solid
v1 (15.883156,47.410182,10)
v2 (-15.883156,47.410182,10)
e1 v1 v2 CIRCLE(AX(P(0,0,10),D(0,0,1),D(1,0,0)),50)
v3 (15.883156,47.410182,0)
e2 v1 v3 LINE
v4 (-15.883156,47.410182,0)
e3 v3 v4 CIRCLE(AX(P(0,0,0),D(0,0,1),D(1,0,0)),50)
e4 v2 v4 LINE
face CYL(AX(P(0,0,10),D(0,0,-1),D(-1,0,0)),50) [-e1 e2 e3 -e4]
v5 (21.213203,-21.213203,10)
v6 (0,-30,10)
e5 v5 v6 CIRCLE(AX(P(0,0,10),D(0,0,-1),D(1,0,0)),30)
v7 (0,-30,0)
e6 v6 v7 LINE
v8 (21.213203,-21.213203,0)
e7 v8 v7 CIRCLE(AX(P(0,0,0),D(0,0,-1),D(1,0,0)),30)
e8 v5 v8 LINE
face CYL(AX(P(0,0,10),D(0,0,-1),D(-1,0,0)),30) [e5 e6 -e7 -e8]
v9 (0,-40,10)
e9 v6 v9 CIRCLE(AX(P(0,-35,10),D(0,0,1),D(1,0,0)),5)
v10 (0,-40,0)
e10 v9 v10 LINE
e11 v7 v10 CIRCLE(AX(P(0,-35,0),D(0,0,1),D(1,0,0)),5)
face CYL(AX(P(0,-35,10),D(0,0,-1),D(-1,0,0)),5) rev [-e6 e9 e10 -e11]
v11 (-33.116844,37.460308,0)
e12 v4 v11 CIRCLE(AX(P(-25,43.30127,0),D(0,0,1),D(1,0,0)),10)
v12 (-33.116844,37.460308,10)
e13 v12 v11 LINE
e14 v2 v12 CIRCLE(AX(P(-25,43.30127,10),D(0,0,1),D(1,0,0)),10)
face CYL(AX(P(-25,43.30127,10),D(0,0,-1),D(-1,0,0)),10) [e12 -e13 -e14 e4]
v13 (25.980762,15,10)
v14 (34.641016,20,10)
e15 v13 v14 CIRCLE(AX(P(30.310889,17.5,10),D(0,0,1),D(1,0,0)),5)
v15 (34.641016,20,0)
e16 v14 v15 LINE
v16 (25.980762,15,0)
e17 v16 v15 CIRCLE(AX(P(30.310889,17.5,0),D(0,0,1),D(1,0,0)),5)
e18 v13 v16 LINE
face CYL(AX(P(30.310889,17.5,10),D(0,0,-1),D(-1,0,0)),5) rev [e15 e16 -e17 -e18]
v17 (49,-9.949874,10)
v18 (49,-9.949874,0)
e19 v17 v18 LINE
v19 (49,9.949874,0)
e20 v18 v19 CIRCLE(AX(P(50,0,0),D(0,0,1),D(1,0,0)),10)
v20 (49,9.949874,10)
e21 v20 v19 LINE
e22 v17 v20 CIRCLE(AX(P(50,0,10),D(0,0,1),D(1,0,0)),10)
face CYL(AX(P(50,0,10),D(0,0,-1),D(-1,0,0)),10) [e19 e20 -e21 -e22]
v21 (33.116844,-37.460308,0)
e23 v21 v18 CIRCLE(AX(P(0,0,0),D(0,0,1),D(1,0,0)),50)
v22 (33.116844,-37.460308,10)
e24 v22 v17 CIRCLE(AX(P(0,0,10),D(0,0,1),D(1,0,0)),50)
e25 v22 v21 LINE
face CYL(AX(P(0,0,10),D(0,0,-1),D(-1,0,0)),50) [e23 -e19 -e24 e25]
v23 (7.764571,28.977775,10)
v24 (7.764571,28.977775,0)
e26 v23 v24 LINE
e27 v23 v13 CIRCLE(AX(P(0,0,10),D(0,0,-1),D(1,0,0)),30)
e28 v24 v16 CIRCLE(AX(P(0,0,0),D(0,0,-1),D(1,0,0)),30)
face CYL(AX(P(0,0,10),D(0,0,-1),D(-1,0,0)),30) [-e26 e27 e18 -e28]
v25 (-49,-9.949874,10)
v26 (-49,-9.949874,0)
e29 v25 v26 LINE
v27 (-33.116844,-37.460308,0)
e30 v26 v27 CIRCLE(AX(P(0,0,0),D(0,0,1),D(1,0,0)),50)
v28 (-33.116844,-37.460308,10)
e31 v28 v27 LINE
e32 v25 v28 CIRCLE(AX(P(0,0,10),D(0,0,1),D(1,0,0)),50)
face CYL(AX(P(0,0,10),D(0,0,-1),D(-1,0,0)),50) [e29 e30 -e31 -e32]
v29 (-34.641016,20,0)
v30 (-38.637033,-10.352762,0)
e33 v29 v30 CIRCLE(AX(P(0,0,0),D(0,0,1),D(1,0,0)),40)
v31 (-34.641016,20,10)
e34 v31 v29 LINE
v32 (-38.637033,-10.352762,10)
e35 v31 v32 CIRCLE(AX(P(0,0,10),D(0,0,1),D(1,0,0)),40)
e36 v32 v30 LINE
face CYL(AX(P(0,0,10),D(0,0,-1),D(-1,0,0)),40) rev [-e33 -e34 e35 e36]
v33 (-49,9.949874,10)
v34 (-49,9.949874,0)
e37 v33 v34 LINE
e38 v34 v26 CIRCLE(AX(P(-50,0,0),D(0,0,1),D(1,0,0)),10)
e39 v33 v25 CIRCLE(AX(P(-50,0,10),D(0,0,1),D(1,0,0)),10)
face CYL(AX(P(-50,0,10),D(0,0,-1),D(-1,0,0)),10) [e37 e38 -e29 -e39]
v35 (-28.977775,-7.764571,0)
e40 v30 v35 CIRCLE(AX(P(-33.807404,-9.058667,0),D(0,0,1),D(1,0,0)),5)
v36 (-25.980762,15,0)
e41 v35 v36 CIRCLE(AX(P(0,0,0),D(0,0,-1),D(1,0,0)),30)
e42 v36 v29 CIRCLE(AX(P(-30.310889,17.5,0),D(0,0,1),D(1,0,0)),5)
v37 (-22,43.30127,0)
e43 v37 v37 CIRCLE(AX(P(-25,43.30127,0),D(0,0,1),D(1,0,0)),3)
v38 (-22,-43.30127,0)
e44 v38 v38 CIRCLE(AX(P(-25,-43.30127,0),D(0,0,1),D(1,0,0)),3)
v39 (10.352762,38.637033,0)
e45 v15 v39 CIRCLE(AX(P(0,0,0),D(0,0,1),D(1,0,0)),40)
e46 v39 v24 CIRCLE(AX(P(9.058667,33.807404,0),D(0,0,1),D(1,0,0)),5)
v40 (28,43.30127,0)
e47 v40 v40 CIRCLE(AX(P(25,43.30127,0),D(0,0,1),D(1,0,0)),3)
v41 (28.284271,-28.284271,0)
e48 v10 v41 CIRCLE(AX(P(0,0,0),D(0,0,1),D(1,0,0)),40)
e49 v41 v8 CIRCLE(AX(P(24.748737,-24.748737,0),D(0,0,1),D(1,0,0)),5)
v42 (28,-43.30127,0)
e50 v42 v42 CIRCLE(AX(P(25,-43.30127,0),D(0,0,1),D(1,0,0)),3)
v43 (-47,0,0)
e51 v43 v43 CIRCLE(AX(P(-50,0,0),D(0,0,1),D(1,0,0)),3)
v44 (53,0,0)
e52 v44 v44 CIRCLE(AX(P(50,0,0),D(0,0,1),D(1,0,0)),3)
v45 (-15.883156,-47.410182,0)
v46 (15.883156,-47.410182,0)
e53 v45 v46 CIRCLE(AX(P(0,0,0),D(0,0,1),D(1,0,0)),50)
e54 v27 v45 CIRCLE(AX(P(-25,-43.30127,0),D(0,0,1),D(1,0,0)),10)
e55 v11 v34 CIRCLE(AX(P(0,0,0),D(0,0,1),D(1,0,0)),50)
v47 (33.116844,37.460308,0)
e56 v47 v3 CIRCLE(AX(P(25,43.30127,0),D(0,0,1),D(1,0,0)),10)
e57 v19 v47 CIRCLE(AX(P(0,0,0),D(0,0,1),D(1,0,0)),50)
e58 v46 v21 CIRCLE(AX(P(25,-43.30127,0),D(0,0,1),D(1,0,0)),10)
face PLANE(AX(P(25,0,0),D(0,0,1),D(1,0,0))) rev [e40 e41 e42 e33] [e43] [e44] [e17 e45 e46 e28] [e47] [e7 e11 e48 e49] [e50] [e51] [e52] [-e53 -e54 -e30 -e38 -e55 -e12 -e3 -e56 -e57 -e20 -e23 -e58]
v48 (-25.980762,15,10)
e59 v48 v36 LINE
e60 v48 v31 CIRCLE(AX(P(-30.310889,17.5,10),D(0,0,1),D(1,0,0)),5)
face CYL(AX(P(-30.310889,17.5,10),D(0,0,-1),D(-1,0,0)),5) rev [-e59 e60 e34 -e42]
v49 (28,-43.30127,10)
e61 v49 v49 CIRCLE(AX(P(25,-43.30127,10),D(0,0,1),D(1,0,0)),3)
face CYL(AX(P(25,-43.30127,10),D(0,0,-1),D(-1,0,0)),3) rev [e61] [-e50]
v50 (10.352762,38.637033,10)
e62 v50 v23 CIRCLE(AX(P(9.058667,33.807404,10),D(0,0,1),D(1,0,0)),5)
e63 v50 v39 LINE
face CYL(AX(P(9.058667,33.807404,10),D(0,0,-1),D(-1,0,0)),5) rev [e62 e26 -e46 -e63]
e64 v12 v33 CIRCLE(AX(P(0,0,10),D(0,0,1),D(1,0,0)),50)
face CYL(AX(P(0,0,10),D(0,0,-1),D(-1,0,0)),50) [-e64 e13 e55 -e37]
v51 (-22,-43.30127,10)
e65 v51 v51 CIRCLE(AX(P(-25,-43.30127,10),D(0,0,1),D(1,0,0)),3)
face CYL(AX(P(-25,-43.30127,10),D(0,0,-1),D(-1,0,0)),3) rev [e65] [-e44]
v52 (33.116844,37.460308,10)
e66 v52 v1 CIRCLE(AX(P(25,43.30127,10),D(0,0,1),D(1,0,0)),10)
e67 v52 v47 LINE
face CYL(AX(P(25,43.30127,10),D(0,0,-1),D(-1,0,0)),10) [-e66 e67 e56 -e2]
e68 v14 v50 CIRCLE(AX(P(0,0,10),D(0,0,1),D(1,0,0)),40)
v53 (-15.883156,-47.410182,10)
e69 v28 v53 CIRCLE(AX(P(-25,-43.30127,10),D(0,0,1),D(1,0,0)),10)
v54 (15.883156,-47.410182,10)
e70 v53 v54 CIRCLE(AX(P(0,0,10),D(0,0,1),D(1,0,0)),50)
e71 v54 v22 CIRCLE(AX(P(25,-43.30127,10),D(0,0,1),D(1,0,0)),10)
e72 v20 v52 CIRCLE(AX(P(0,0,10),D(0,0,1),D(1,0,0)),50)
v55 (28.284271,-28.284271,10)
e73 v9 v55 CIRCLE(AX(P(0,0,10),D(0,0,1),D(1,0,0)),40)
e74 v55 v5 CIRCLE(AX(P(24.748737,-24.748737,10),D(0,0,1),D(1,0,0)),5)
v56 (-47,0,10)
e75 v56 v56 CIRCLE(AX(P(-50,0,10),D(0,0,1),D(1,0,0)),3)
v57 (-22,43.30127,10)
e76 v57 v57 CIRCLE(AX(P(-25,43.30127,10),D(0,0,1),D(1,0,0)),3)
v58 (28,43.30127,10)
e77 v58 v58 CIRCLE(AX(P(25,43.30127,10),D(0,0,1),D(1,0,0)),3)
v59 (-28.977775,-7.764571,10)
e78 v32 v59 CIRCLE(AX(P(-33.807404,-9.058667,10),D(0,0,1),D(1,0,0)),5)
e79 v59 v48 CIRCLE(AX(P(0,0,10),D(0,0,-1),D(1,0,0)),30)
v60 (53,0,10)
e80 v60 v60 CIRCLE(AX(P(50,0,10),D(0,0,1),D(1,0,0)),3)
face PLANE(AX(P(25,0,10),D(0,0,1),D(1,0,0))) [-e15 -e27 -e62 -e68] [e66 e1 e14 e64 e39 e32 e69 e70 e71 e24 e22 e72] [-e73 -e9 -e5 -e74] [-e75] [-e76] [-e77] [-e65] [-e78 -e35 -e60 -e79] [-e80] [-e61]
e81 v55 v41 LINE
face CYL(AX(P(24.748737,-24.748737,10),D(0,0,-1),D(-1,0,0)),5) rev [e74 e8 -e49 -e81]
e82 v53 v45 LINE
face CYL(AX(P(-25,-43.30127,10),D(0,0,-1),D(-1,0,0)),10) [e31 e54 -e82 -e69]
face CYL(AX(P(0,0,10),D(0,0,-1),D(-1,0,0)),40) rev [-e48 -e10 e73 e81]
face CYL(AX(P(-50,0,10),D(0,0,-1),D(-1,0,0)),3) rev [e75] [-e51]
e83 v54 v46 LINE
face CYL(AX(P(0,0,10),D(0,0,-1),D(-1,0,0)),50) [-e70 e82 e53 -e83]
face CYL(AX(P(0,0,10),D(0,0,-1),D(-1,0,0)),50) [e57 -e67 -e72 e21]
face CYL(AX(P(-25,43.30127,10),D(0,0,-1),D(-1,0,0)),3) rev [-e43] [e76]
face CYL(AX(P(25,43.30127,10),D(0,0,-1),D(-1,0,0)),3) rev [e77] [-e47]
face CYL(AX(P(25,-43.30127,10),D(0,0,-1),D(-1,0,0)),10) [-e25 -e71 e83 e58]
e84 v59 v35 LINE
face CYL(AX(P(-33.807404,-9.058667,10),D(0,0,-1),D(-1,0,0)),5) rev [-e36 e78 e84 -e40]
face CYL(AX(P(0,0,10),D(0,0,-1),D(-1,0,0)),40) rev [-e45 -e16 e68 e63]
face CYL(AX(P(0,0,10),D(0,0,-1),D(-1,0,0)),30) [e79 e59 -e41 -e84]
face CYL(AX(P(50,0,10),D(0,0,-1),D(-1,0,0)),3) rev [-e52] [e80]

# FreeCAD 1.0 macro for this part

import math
import FreeCAD as App
import Part
import Sketcher
from FreeCAD import Vector
Q = App.Units.Quantity

doc = App.newDocument("Part")
body = doc.addObject("PartDesign::Body", "Body")

# Sketch on XY plane
sketch1 = body.newObject("Sketcher::SketchObject", "Sketch")
sketch1.AttachmentSupport = (doc.getObject("XY_Plane"), [""])
sketch1.MapMode = "FlatFace"
sketch1.addGeometry(Part.ArcOfCircle(Part.Circle(Vector(0, 0, 0), Vector(0, 0, 1), 50), math.radians(11), math.radians(49)), False)
sketch1.addGeometry(Part.ArcOfCircle(Part.Circle(Vector(25, 43.3, 0), Vector(0, 0, 1), 10), math.radians(-36), math.radians(156)), False)
sketch1.addGeometry(Part.ArcOfCircle(Part.Circle(Vector(0, 0, 0), Vector(0, 0, 1), 50), math.radians(71), math.radians(109)), False)
sketch1.addGeometry(Part.ArcOfCircle(Part.Circle(Vector(-25, 43.3, 0), Vector(0, 0, 1), 10), math.radians(24), math.radians(216)), False)
sketch1.addGeometry(Part.ArcOfCircle(Part.Circle(Vector(0, 0, 0), Vector(0, 0, 1), 50), math.radians(131), math.radians(169)), False)
sketch1.addGeometry(Part.ArcOfCircle(Part.Circle(Vector(-50, 0, 0), Vector(0, 0, 1), 10), math.radians(84), math.radians(276)), False)
sketch1.addGeometry(Part.ArcOfCircle(Part.Circle(Vector(0, 0, 0), Vector(0, 0, 1), 50), math.radians(-169), math.radians(-131)), False)
sketch1.addGeometry(Part.ArcOfCircle(Part.Circle(Vector(-25, -43.3, 0), Vector(0, 0, 1), 10), math.radians(144), math.radians(336)), False)
sketch1.addGeometry(Part.ArcOfCircle(Part.Circle(Vector(0, 0, 0), Vector(0, 0, 1), 50), math.radians(-109), math.radians(-71)), False)
sketch1.addGeometry(Part.ArcOfCircle(Part.Circle(Vector(25, -43.3, 0), Vector(0, 0, 1), 10), math.radians(-156), math.radians(36)), False)
sketch1.addGeometry(Part.ArcOfCircle(Part.Circle(Vector(0, 0, 0), Vector(0, 0, 1), 50), math.radians(-49), math.radians(-11)), False)
sketch1.addGeometry(Part.ArcOfCircle(Part.Circle(Vector(50, 0, 0), Vector(0, 0, 1), 10), math.radians(-96), math.radians(96)), False)
sketch1.addGeometry(Part.Circle(Vector(-25, -43.3, 0), Vector(0, 0, 1), 3), False)
sketch1.addGeometry(Part.Circle(Vector(25, -43.3, 0), Vector(0, 0, 1), 3), False)
sketch1.addGeometry(Part.ArcOfCircle(Part.Circle(Vector(0, 0, 0), Vector(0, 0, 1), 40), math.radians(-90), math.radians(-45)), False)
sketch1.addGeometry(Part.ArcOfCircle(Part.Circle(Vector(0, -35, 0), Vector(0, 0, 1), 5), math.radians(90), math.radians(270)), False)
sketch1.addGeometry(Part.ArcOfCircle(Part.Circle(Vector(0, 0, 0), Vector(0, 0, 1), 30), math.radians(-90), math.radians(-45)), False)
sketch1.addGeometry(Part.ArcOfCircle(Part.Circle(Vector(24.7, -24.7, 0), Vector(0, 0, 1), 5), math.radians(-45), math.radians(135)), False)
sketch1.addGeometry(Part.Circle(Vector(-50, 0, 0), Vector(0, 0, 1), 3), False)
sketch1.addGeometry(Part.ArcOfCircle(Part.Circle(Vector(0, 0, 0), Vector(0, 0, 1), 40), math.radians(150), math.radians(195)), False)
sketch1.addGeometry(Part.ArcOfCircle(Part.Circle(Vector(-30.3, 17.5, 0), Vector(0, 0, 1), 5), math.radians(-30), math.radians(150)), False)
sketch1.addGeometry(Part.ArcOfCircle(Part.Circle(Vector(0, 0, 0), Vector(0, 0, 1), 30), math.radians(150), math.radians(195)), False)
sketch1.addGeometry(Part.ArcOfCircle(Part.Circle(Vector(-33.8, -9.1, 0), Vector(0, 0, 1), 5), math.radians(-165), math.radians(15)), False)
sketch1.addGeometry(Part.Circle(Vector(-25, 43.3, 0), Vector(0, 0, 1), 3), False)
sketch1.addGeometry(Part.Circle(Vector(50, 0, 0), Vector(0, 0, 1), 3), False)
sketch1.addGeometry(Part.ArcOfCircle(Part.Circle(Vector(0, 0, 0), Vector(0, 0, 1), 40), math.radians(30), math.radians(75)), False)
sketch1.addGeometry(Part.ArcOfCircle(Part.Circle(Vector(30.3, 17.5, 0), Vector(0, 0, 1), 5), math.radians(-150), math.radians(30)), False)
sketch1.addGeometry(Part.ArcOfCircle(Part.Circle(Vector(0, 0, 0), Vector(0, 0, 1), 30), math.radians(30), math.radians(75)), False)
sketch1.addGeometry(Part.ArcOfCircle(Part.Circle(Vector(9.1, 33.8, 0), Vector(0, 0, 1), 5), math.radians(75), math.radians(255)), False)
sketch1.addGeometry(Part.Circle(Vector(25, 43.3, 0), Vector(0, 0, 1), 3), False)
sketch1.addConstraint(Sketcher.Constraint("Coincident", 0, 2, 1, 1))
sketch1.addConstraint(Sketcher.Constraint("Coincident", 1, 2, 2, 1))
sketch1.addConstraint(Sketcher.Constraint("Coincident", 2, 2, 3, 1))
sketch1.addConstraint(Sketcher.Constraint("Coincident", 3, 2, 4, 1))
sketch1.addConstraint(Sketcher.Constraint("Coincident", 4, 2, 5, 1))
sketch1.addConstraint(Sketcher.Constraint("Coincident", 5, 2, 6, 1))
sketch1.addConstraint(Sketcher.Constraint("Coincident", 6, 2, 7, 1))
sketch1.addConstraint(Sketcher.Constraint("Coincident", 7, 2, 8, 1))
sketch1.addConstraint(Sketcher.Constraint("Coincident", 8, 2, 9, 1))
sketch1.addConstraint(Sketcher.Constraint("Coincident", 9, 2, 10, 1))
sketch1.addConstraint(Sketcher.Constraint("Coincident", 10, 2, 11, 1))
sketch1.addConstraint(Sketcher.Constraint("Coincident", 11, 2, 0, 1))
sketch1.addConstraint(Sketcher.Constraint("Tangent", 14, 1, 15, 2))
sketch1.addConstraint(Sketcher.Constraint("Tangent", 15, 1, 16, 1))
sketch1.addConstraint(Sketcher.Constraint("Tangent", 16, 2, 17, 2))
sketch1.addConstraint(Sketcher.Constraint("Tangent", 17, 1, 14, 2))
sketch1.addConstraint(Sketcher.Constraint("Tangent", 19, 1, 20, 2))
sketch1.addConstraint(Sketcher.Constraint("Tangent", 20, 1, 21, 1))
sketch1.addConstraint(Sketcher.Constraint("Tangent", 21, 2, 22, 2))
sketch1.addConstraint(Sketcher.Constraint("Tangent", 22, 1, 19, 2))
sketch1.addConstraint(Sketcher.Constraint("Tangent", 25, 1, 26, 2))
sketch1.addConstraint(Sketcher.Constraint("Tangent", 26, 1, 27, 1))
sketch1.addConstraint(Sketcher.Constraint("Tangent", 27, 2, 28, 2))
sketch1.addConstraint(Sketcher.Constraint("Tangent", 28, 1, 25, 2))
sketch1.addConstraint(Sketcher.Constraint("Coincident", 0, 3, -1, 1))
sketch1.addConstraint(Sketcher.Constraint("Coincident", 2, 3, -1, 1))
sketch1.addConstraint(Sketcher.Constraint("Coincident", 4, 3, -1, 1))
sketch1.addConstraint(Sketcher.Constraint("Coincident", 6, 3, -1, 1))
sketch1.addConstraint(Sketcher.Constraint("Coincident", 8, 3, -1, 1))
sketch1.addConstraint(Sketcher.Constraint("Coincident", 10, 3, -1, 1))
sketch1.addConstraint(Sketcher.Constraint("Coincident", 14, 3, -1, 1))
sketch1.addConstraint(Sketcher.Constraint("Coincident", 16, 3, -1, 1))
sketch1.addConstraint(Sketcher.Constraint("Coincident", 19, 3, -1, 1))
sketch1.addConstraint(Sketcher.Constraint("Coincident", 21, 3, -1, 1))
sketch1.addConstraint(Sketcher.Constraint("Coincident", 25, 3, -1, 1))
sketch1.addConstraint(Sketcher.Constraint("Coincident", 27, 3, -1, 1))
sketch1.addConstraint(Sketcher.Constraint("Coincident", 12, 3, 7, 3))
sketch1.addConstraint(Sketcher.Constraint("Coincident", 13, 3, 9, 3))
sketch1.addConstraint(Sketcher.Constraint("Coincident", 18, 3, 5, 3))
sketch1.addConstraint(Sketcher.Constraint("Coincident", 23, 3, 3, 3))
sketch1.addConstraint(Sketcher.Constraint("Coincident", 24, 3, 11, 3))
sketch1.addConstraint(Sketcher.Constraint("Coincident", 29, 3, 1, 3))
sketch1.addConstraint(Sketcher.Constraint("Equal", 0, 2))
sketch1.addConstraint(Sketcher.Constraint("Equal", 1, 3))
sketch1.addConstraint(Sketcher.Constraint("Equal", 2, 4))
sketch1.addConstraint(Sketcher.Constraint("Equal", 3, 5))
sketch1.addConstraint(Sketcher.Constraint("Equal", 4, 6))
sketch1.addConstraint(Sketcher.Constraint("Equal", 5, 7))
sketch1.addConstraint(Sketcher.Constraint("Equal", 6, 8))
sketch1.addConstraint(Sketcher.Constraint("Equal", 7, 9))
sketch1.addConstraint(Sketcher.Constraint("Equal", 8, 10))
sketch1.addConstraint(Sketcher.Constraint("Equal", 9, 11))
sketch1.addConstraint(Sketcher.Constraint("Equal", 12, 13))
sketch1.addConstraint(Sketcher.Constraint("Equal", 13, 18))
sketch1.addConstraint(Sketcher.Constraint("Equal", 14, 19))
sketch1.addConstraint(Sketcher.Constraint("Equal", 17, 20))
sketch1.addConstraint(Sketcher.Constraint("Equal", 18, 23))
sketch1.addConstraint(Sketcher.Constraint("Equal", 23, 24))
sketch1.addConstraint(Sketcher.Constraint("Equal", 19, 25))
sketch1.addConstraint(Sketcher.Constraint("Equal", 22, 26))
sketch1.addConstraint(Sketcher.Constraint("Equal", 24, 29))
sketch1.addConstraint(Sketcher.Constraint("Symmetric", 1, 3, 7, 3, -1, 1))
sketch1.addConstraint(Sketcher.Constraint("Symmetric", 3, 3, 9, 3, -1, 1))
sketch1.addConstraint(Sketcher.Constraint("Symmetric", 5, 3, 11, 3, -1, 1))
sketch1.addConstraint(Sketcher.Constraint("Symmetric", 1, 3, 3, 3, -2))
sketch1.addConstraint(Sketcher.Constraint("PointOnObject", 5, 3, -1))
sketch1.addConstraint(Sketcher.Constraint("PointOnObject", 15, 3, -2))
sketch1.addConstraint(Sketcher.Constraint("Horizontal", 20, 3, 26, 3))
sketch1.addConstraint(Sketcher.Constraint("Diameter", 12, Q("6 mm")))
sketch1.addConstraint(Sketcher.Constraint("Radius", 0, Q("50 mm")))
sketch1.addConstraint(Sketcher.Constraint("Radius", 1, Q("10 mm")))
sketch1.addConstraint(Sketcher.Constraint("Radius", 14, Q("40 mm")))
sketch1.addConstraint(Sketcher.Constraint("Radius", 15, Q("5 mm")))
sketch1.addConstraint(Sketcher.Constraint("DistanceX", -1, 1, 1, 3, Q("25 mm")))
sketch1.addConstraint(Sketcher.Constraint("DistanceX", 5, 3, -1, 1, Q("50 mm")))
sketch1.addConstraint(Sketcher.Constraint("DistanceY", -1, 1, 19, 1, Q("20 mm")))
sketch1.addConstraint(Sketcher.Constraint("DistanceY", 9, 3, 17, 1, Q("15.016999 mm")))
sketch1.addConstraint(Sketcher.Constraint("DistanceY", -1, 1, 1, 3, Q("43.30127 mm")))
sketch1.addConstraint(Sketcher.Constraint("DistanceY", 21, 2, -1, 1, Q("7.764571 mm")))
sketch1.addConstraint(Sketcher.Constraint("DistanceX", -1, 1, 27, 2, Q("7.764571 mm")))
pad1 = body.newObject("PartDesign::Pad", "Pad")
pad1.Profile = sketch1
pad1.Length = 10

doc.recompute()
